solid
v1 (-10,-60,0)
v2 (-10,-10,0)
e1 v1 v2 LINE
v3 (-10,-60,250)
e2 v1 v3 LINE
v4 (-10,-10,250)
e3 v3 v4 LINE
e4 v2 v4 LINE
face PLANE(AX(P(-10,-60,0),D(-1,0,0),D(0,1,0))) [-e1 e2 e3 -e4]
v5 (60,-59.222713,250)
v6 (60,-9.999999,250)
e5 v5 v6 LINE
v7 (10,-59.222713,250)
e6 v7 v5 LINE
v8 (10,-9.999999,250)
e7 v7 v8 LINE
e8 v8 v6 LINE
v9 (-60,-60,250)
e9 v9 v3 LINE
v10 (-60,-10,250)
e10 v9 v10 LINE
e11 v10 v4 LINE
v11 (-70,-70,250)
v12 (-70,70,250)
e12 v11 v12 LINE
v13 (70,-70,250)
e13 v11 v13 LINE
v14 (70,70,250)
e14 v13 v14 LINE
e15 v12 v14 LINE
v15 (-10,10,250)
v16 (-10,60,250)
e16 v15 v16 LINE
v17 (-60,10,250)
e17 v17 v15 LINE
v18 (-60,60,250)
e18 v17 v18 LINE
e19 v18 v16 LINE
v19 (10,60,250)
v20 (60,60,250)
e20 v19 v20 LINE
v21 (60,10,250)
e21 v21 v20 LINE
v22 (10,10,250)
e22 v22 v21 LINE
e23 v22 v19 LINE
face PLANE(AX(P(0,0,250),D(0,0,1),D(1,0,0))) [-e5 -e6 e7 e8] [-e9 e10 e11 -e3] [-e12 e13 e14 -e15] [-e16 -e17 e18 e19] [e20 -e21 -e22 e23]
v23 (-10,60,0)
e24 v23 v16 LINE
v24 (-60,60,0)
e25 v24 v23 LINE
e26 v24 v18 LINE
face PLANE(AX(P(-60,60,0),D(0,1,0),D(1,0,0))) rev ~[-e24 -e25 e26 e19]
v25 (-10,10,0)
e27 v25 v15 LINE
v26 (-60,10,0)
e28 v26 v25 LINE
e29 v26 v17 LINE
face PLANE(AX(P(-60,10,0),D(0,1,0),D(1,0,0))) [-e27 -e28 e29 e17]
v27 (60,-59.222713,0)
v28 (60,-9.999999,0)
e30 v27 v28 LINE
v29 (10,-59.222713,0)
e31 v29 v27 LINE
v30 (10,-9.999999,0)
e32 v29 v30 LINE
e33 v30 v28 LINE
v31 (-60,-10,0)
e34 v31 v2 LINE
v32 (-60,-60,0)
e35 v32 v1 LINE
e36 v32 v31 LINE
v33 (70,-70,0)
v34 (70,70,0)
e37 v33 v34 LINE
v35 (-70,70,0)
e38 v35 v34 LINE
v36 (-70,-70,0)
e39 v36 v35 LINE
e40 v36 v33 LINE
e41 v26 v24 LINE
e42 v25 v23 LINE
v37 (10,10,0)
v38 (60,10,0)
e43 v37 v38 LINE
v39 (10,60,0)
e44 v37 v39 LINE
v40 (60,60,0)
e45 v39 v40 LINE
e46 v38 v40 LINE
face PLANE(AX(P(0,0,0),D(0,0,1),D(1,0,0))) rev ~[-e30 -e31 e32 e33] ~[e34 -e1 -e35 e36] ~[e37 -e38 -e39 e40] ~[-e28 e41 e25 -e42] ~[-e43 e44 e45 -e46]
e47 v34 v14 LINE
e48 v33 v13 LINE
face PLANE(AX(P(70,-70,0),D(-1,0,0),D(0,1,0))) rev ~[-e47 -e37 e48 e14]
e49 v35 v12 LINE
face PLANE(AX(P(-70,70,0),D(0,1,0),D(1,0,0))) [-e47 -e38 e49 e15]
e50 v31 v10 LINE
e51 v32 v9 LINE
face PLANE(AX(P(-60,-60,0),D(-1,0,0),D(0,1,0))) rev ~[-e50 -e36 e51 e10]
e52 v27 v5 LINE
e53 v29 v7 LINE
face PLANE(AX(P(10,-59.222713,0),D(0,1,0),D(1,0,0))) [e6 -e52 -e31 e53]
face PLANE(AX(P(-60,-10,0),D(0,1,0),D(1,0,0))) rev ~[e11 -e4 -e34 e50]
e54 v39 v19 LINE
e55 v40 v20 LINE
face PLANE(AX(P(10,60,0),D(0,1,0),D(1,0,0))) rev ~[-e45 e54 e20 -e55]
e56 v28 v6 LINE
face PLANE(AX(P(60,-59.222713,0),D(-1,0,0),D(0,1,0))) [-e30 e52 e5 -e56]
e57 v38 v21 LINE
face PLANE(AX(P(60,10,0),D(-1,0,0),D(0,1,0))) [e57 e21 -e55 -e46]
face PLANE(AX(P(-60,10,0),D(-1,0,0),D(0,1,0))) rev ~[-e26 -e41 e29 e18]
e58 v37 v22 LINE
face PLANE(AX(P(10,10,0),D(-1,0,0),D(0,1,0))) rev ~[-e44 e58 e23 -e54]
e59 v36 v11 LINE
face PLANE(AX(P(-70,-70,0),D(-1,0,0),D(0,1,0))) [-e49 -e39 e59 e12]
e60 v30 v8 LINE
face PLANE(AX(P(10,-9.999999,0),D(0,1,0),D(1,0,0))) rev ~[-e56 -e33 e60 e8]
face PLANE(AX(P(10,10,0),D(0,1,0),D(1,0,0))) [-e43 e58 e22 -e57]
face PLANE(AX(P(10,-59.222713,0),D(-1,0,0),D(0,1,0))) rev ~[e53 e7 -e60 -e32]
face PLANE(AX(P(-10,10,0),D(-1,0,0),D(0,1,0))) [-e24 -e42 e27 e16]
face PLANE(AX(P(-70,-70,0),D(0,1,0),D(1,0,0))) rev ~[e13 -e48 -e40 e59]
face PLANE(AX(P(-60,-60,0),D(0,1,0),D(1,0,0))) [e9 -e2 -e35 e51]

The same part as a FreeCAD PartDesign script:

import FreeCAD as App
import Part
import Sketcher
Q = App.Units.Quantity

doc = App.newDocument("Part")
body = doc.addObject("PartDesign::Body", "Body")

# Sketch on XY plane
sketch1 = body.newObject("Sketcher::SketchObject", "Sketch")
sketch1.AttachmentSupport = (doc.getObject("XY_Plane"), [""])
sketch1.MapMode = "FlatFace"
sketch1.addGeometry(Part.LineSegment(App.Vector(-70, 70, 0), App.Vector(-70, -70, 0)), False)
sketch1.addGeometry(Part.LineSegment(App.Vector(-70, -70, 0), App.Vector(70, -70, 0)), False)
sketch1.addGeometry(Part.LineSegment(App.Vector(70, -70, 0), App.Vector(70, 70, 0)), False)
sketch1.addGeometry(Part.LineSegment(App.Vector(70, 70, 0), App.Vector(-70, 70, 0)), False)
sketch1.addGeometry(Part.LineSegment(App.Vector(-10, -60, 0), App.Vector(-60, -60, 0)), False)
sketch1.addGeometry(Part.LineSegment(App.Vector(-60, -60, 0), App.Vector(-60, -10, 0)), False)
sketch1.addGeometry(Part.LineSegment(App.Vector(-60, -10, 0), App.Vector(-10, -10, 0)), False)
sketch1.addGeometry(Part.LineSegment(App.Vector(-10, -10, 0), App.Vector(-10, -60, 0)), False)
sketch1.addGeometry(Part.LineSegment(App.Vector(60, -59, 0), App.Vector(10, -59, 0)), False)
sketch1.addGeometry(Part.LineSegment(App.Vector(10, -59, 0), App.Vector(10, -10, 0)), False)
sketch1.addGeometry(Part.LineSegment(App.Vector(10, -10, 0), App.Vector(60, -10, 0)), False)
sketch1.addGeometry(Part.LineSegment(App.Vector(60, -10, 0), App.Vector(60, -59, 0)), False)
sketch1.addGeometry(Part.LineSegment(App.Vector(-10, 10, 0), App.Vector(-60, 10, 0)), False)
sketch1.addGeometry(Part.LineSegment(App.Vector(-60, 10, 0), App.Vector(-60, 60, 0)), False)
sketch1.addGeometry(Part.LineSegment(App.Vector(-60, 60, 0), App.Vector(-10, 60, 0)), False)
sketch1.addGeometry(Part.LineSegment(App.Vector(-10, 60, 0), App.Vector(-10, 10, 0)), False)
sketch1.addGeometry(Part.LineSegment(App.Vector(60, 10, 0), App.Vector(10, 10, 0)), False)
sketch1.addGeometry(Part.LineSegment(App.Vector(10, 10, 0), App.Vector(10, 60, 0)), False)
sketch1.addGeometry(Part.LineSegment(App.Vector(10, 60, 0), App.Vector(60, 60, 0)), False)
sketch1.addGeometry(Part.LineSegment(App.Vector(60, 60, 0), App.Vector(60, 10, 0)), False)
sketch1.addConstraint(Sketcher.Constraint("Coincident", 0, 2, 1, 1))
sketch1.addConstraint(Sketcher.Constraint("Coincident", 1, 2, 2, 1))
sketch1.addConstraint(Sketcher.Constraint("Coincident", 2, 2, 3, 1))
sketch1.addConstraint(Sketcher.Constraint("Coincident", 3, 2, 0, 1))
sketch1.addConstraint(Sketcher.Constraint("Coincident", 4, 2, 5, 1))
sketch1.addConstraint(Sketcher.Constraint("Coincident", 5, 2, 6, 1))
sketch1.addConstraint(Sketcher.Constraint("Coincident", 6, 2, 7, 1))
sketch1.addConstraint(Sketcher.Constraint("Coincident", 7, 2, 4, 1))
sketch1.addConstraint(Sketcher.Constraint("Coincident", 8, 2, 9, 1))
sketch1.addConstraint(Sketcher.Constraint("Coincident", 9, 2, 10, 1))
sketch1.addConstraint(Sketcher.Constraint("Coincident", 10, 2, 11, 1))
sketch1.addConstraint(Sketcher.Constraint("Coincident", 11, 2, 8, 1))
sketch1.addConstraint(Sketcher.Constraint("Coincident", 12, 2, 13, 1))
sketch1.addConstraint(Sketcher.Constraint("Coincident", 13, 2, 14, 1))
sketch1.addConstraint(Sketcher.Constraint("Coincident", 14, 2, 15, 1))
sketch1.addConstraint(Sketcher.Constraint("Coincident", 15, 2, 12, 1))
sketch1.addConstraint(Sketcher.Constraint("Coincident", 16, 2, 17, 1))
sketch1.addConstraint(Sketcher.Constraint("Coincident", 17, 2, 18, 1))
sketch1.addConstraint(Sketcher.Constraint("Coincident", 18, 2, 19, 1))
sketch1.addConstraint(Sketcher.Constraint("Coincident", 19, 2, 16, 1))
sketch1.addConstraint(Sketcher.Constraint("Vertical", 0))
sketch1.addConstraint(Sketcher.Constraint("Horizontal", 1))
sketch1.addConstraint(Sketcher.Constraint("Vertical", 2))
sketch1.addConstraint(Sketcher.Constraint("Horizontal", 3))
sketch1.addConstraint(Sketcher.Constraint("Horizontal", 4))
sketch1.addConstraint(Sketcher.Constraint("Vertical", 5))
sketch1.addConstraint(Sketcher.Constraint("Horizontal", 6))
sketch1.addConstraint(Sketcher.Constraint("Vertical", 7))
sketch1.addConstraint(Sketcher.Constraint("Horizontal", 8))
sketch1.addConstraint(Sketcher.Constraint("Vertical", 9))
sketch1.addConstraint(Sketcher.Constraint("Horizontal", 10))
sketch1.addConstraint(Sketcher.Constraint("Vertical", 11))
sketch1.addConstraint(Sketcher.Constraint("Horizontal", 12))
sketch1.addConstraint(Sketcher.Constraint("Vertical", 13))
sketch1.addConstraint(Sketcher.Constraint("Horizontal", 14))
sketch1.addConstraint(Sketcher.Constraint("Vertical", 15))
sketch1.addConstraint(Sketcher.Constraint("Horizontal", 16))
sketch1.addConstraint(Sketcher.Constraint("Vertical", 17))
sketch1.addConstraint(Sketcher.Constraint("Horizontal", 18))
sketch1.addConstraint(Sketcher.Constraint("Vertical", 19))
sketch1.addConstraint(Sketcher.Constraint("Symmetric", 0, 2, 2, 2, -1, 1))
sketch1.addConstraint(Sketcher.Constraint("Symmetric", 10, 2, 12, 2, -1, 1))
sketch1.addConstraint(Sketcher.Constraint("Symmetric", 6, 2, 16, 2, -1, 1))
sketch1.addConstraint(Sketcher.Constraint("Symmetric", 4, 2, 18, 2, -1, 1))
sketch1.addConstraint(Sketcher.Constraint("Symmetric", 6, 2, 9, 2, -2))
sketch1.addConstraint(Sketcher.Constraint("Symmetric", 14, 2, 17, 2, -2))
sketch1.addConstraint(Sketcher.Constraint("Vertical", 5, 2, 12, 2))
sketch1.addConstraint(Sketcher.Constraint("Equal", 3, 0))
sketch1.addConstraint(Sketcher.Constraint("Equal", 18, 5))
sketch1.addConstraint(Sketcher.Constraint("DistanceX", 1, 1, 1, 2, Q("140 mm")))
sketch1.addConstraint(Sketcher.Constraint("DistanceX", 4, 2, 4, 1, Q("50 mm")))
sketch1.addConstraint(Sketcher.Constraint("DistanceX", 4, 2, -1, 1, Q("60 mm")))
sketch1.addConstraint(Sketcher.Constraint("DistanceY", 4, 2, -1, 1, Q("60 mm")))
sketch1.addConstraint(Sketcher.Constraint("DistanceY", 9, 1, 9, 2, Q("49.222713 mm")))
pad1 = body.newObject("PartDesign::Pad", "Pad")
pad1.Profile = sketch1
pad1.Length = 250

doc.recompute()
